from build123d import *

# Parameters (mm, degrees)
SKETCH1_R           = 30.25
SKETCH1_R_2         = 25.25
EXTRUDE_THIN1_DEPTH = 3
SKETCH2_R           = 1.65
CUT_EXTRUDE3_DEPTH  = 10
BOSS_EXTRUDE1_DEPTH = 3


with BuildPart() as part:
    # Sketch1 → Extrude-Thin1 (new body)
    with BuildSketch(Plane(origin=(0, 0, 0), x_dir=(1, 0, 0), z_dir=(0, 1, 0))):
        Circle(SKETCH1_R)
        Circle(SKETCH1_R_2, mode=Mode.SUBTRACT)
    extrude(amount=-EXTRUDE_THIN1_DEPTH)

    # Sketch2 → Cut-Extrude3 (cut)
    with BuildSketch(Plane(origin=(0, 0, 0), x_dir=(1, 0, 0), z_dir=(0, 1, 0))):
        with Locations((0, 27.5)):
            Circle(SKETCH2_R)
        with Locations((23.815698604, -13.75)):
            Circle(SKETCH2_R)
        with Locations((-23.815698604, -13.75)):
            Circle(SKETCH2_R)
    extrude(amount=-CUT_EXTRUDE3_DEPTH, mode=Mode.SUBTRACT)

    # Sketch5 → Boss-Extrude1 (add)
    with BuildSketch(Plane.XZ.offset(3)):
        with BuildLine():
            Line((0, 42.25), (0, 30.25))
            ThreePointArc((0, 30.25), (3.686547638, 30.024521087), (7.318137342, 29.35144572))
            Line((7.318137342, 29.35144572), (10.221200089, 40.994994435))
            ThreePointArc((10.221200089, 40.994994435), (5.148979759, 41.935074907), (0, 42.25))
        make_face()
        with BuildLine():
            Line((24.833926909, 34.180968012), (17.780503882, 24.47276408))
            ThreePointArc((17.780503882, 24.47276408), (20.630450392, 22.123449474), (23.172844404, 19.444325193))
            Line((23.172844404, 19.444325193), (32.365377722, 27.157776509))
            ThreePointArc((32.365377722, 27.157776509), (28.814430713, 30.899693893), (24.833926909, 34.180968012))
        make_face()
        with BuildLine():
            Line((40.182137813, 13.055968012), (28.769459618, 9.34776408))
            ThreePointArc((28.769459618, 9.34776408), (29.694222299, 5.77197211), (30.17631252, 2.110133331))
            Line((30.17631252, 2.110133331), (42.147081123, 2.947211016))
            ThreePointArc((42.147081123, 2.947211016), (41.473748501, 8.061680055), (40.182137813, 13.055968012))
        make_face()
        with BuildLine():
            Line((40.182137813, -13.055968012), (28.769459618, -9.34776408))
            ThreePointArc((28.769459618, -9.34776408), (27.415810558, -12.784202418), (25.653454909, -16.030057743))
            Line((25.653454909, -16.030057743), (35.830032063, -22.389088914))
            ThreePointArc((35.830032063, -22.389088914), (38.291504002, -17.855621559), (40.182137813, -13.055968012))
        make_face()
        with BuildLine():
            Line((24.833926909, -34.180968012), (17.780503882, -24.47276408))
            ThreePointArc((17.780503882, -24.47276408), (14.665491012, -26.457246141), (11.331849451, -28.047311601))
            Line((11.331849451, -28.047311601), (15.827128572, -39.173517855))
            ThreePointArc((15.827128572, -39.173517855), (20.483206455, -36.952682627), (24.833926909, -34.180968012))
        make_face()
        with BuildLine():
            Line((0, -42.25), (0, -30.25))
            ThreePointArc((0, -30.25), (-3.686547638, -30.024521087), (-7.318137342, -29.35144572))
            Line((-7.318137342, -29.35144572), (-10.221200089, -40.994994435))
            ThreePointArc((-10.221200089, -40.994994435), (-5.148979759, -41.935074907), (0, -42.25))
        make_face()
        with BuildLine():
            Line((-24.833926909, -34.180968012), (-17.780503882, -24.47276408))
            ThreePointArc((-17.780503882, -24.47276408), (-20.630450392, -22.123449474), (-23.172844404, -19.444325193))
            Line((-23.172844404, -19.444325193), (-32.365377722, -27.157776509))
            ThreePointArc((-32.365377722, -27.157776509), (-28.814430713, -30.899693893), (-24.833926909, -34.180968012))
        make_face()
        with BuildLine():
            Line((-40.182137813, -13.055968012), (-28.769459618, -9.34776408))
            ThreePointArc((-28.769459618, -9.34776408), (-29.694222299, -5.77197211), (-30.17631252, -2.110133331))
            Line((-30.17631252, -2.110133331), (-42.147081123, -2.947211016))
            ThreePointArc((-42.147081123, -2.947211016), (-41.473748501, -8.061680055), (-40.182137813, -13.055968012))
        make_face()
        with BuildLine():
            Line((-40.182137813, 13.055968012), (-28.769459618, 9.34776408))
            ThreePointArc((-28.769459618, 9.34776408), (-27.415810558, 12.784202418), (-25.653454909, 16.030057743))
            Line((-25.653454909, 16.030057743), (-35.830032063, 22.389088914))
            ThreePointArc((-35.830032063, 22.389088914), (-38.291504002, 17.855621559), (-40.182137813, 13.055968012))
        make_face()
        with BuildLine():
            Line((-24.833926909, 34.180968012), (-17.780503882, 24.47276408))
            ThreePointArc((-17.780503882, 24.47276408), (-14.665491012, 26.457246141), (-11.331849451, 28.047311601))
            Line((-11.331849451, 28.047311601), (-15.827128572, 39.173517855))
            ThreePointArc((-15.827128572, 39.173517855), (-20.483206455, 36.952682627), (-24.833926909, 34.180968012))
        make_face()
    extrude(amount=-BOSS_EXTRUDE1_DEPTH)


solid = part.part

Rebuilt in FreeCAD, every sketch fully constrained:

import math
import FreeCAD as App
import Part
import Sketcher
from FreeCAD import Vector
Q = App.Units.Quantity

doc = App.newDocument("Part")
body = doc.addObject("PartDesign::Body", "Body")

# Sketch on XZ plane
sketch1 = body.newObject("Sketcher::SketchObject", "Sketch")
sketch1.AttachmentSupport = (doc.getObject("XZ_Plane"), [""])
sketch1.MapMode = "FlatFace"
sketch1.addGeometry([
    Part.Circle(Vector(0, 0, 0), Vector(0, 0, 1), 30),
    Part.Circle(Vector(0, 0, 0), Vector(0, 0, 1), 25),
], False)
sketch1.addConstraint([
    Sketcher.Constraint("Coincident", 0, 3, -1, 1),
    Sketcher.Constraint("Coincident", 1, 3, -1, 1),
    Sketcher.Constraint("Diameter", 0, Q("60.5 mm")),
    Sketcher.Constraint("Diameter", 1, Q("50.5 mm")),
])
pad1 = body.newObject("PartDesign::Pad", "Pad")
pad1.Profile = sketch1
pad1.Length = 3

# Sketch on XZ plane
sketch2 = body.newObject("Sketcher::SketchObject", "Sketch001")
sketch2.AttachmentSupport = (doc.getObject("XZ_Plane"), [""])
sketch2.MapMode = "FlatFace"
sketch2.addGeometry([
    Part.Circle(Vector(0, -27.5, 0), Vector(0, 0, 1), 1.6),
    Part.Circle(Vector(23.8, 13.8, 0), Vector(0, 0, 1), 1.6),
    Part.Circle(Vector(-23.8, 13.8, 0), Vector(0, 0, 1), 1.6),
], False)
sketch2.addConstraint([
    Sketcher.Constraint("Equal", 0, 1),
    Sketcher.Constraint("Equal", 1, 2),
    Sketcher.Constraint("Symmetric", 1, 3, 2, 3, -2),
    Sketcher.Constraint("PointOnObject", 0, 3, -2),
    Sketcher.Constraint("Diameter", 0, Q("3.3 mm")),
    Sketcher.Constraint("DistanceY", 0, 3, -1, 1, Q("27.5 mm")),
    Sketcher.Constraint("DistanceY", -1, 1, 1, 3, Q("13.75 mm")),
    Sketcher.Constraint("DistanceX", -1, 1, 1, 3, Q("23.815699 mm")),
])
pocket1 = body.newObject("PartDesign::Pocket", "Pocket")
pocket1.Profile = sketch2
pocket1.Length = 10
pocket1.Reversed = True

# Sketch on XZ plane
sketch3 = body.newObject("Sketcher::SketchObject", "Sketch002")
sketch3.AttachmentSupport = (doc.getObject("XZ_Plane"), [""])
sketch3.MapMode = "FlatFace"
sketch3.AttachmentOffset = App.Placement(Vector(0, 0, 3), App.Rotation())
sketch3.addGeometry([
    Part.LineSegment(Vector(0, 42, 0), Vector(0, 30, 0)),  # 0
    Part.ArcOfCircle(Part.Circle(Vector(0, 0, 0), Vector(0, 0, 1), 30), math.radians(76), math.radians(90)),  # 1
    Part.LineSegment(Vector(7, 29, 0), Vector(10, 41, 0)),  # 2
    Part.ArcOfCircle(Part.Circle(Vector(0, 0, 0), Vector(0, 0, 1), 42), math.radians(76), math.radians(90)),  # 3
    Part.LineSegment(Vector(25, 34, 0), Vector(18, 24, 0)),  # 4
    Part.ArcOfCircle(Part.Circle(Vector(0, 0, 0), Vector(0, 0, 1), 30), math.radians(40), math.radians(54)),  # 5
    Part.LineSegment(Vector(23, 19, 0), Vector(32, 27, 0)),  # 6
    Part.ArcOfCircle(Part.Circle(Vector(0, 0, 0), Vector(0, 0, 1), 42), math.radians(40), math.radians(54)),  # 7
    Part.LineSegment(Vector(40, 13, 0), Vector(29, 9, 0)),  # 8
    Part.ArcOfCircle(Part.Circle(Vector(0, 0, 0), Vector(0, 0, 1), 30), math.radians(4), math.radians(18)),  # 9
    Part.LineSegment(Vector(30, 2, 0), Vector(42, 3, 0)),  # 10
    Part.ArcOfCircle(Part.Circle(Vector(0, 0, 0), Vector(0, 0, 1), 42), math.radians(4), math.radians(18)),  # 11
    Part.LineSegment(Vector(40, -13, 0), Vector(29, -9, 0)),  # 12
    Part.ArcOfCircle(Part.Circle(Vector(0, 0, 0), Vector(0, 0, 1), 30), math.radians(-32), math.radians(-18)),  # 13
    Part.LineSegment(Vector(26, -16, 0), Vector(36, -22, 0)),  # 14
    Part.ArcOfCircle(Part.Circle(Vector(0, 0, 0), Vector(0, 0, 1), 42), math.radians(-32), math.radians(-18)),  # 15
    Part.LineSegment(Vector(25, -34, 0), Vector(18, -24, 0)),  # 16
    Part.ArcOfCircle(Part.Circle(Vector(0, 0, 0), Vector(0, 0, 1), 30), math.radians(-68), math.radians(-54)),  # 17
    Part.LineSegment(Vector(11, -28, 0), Vector(16, -39, 0)),  # 18
    Part.ArcOfCircle(Part.Circle(Vector(0, 0, 0), Vector(0, 0, 1), 42), math.radians(-68), math.radians(-54)),  # 19
    Part.LineSegment(Vector(0, -42, 0), Vector(0, -30, 0)),  # 20
    Part.ArcOfCircle(Part.Circle(Vector(0, 0, 0), Vector(0, 0, 1), 30), math.radians(-104), math.radians(-90)),  # 21
    Part.LineSegment(Vector(-7, -29, 0), Vector(-10, -41, 0)),  # 22
    Part.ArcOfCircle(Part.Circle(Vector(0, 0, 0), Vector(0, 0, 1), 42), math.radians(-104), math.radians(-90)),  # 23
    Part.LineSegment(Vector(-25, -34, 0), Vector(-18, -24, 0)),  # 24
    Part.ArcOfCircle(Part.Circle(Vector(0, 0, 0), Vector(0, 0, 1), 30), math.radians(-140), math.radians(-126)),  # 25
    Part.LineSegment(Vector(-23, -19, 0), Vector(-32, -27, 0)),  # 26
    Part.ArcOfCircle(Part.Circle(Vector(0, 0, 0), Vector(0, 0, 1), 42), math.radians(-140), math.radians(-126)),  # 27
    Part.LineSegment(Vector(-40, -13, 0), Vector(-29, -9, 0)),  # 28
    Part.ArcOfCircle(Part.Circle(Vector(0, 0, 0), Vector(0, 0, 1), 30), math.radians(-176), math.radians(-162)),  # 29
    Part.LineSegment(Vector(-30, -2, 0), Vector(-42, -3, 0)),  # 30
    Part.ArcOfCircle(Part.Circle(Vector(0, 0, 0), Vector(0, 0, 1), 42), math.radians(-176), math.radians(-162)),  # 31
    Part.LineSegment(Vector(-40, 13, 0), Vector(-29, 9, 0)),  # 32
    Part.ArcOfCircle(Part.Circle(Vector(0, 0, 0), Vector(0, 0, 1), 30), math.radians(148), math.radians(162)),  # 33
    Part.LineSegment(Vector(-26, 16, 0), Vector(-36, 22, 0)),  # 34
    Part.ArcOfCircle(Part.Circle(Vector(0, 0, 0), Vector(0, 0, 1), 42), math.radians(148), math.radians(162)),  # 35
    Part.LineSegment(Vector(-25, 34, 0), Vector(-18, 24, 0)),  # 36
    Part.ArcOfCircle(Part.Circle(Vector(0, 0, 0), Vector(0, 0, 1), 30), math.radians(112), math.radians(126)),  # 37
    Part.LineSegment(Vector(-11, 28, 0), Vector(-16, 39, 0)),  # 38
    Part.ArcOfCircle(Part.Circle(Vector(0, 0, 0), Vector(0, 0, 1), 42), math.radians(112), math.radians(126)),  # 39
], False)
sketch3.addConstraint([
    Sketcher.Constraint("Coincident", 0, 2, 1, 2),
    Sketcher.Constraint("Coincident", 1, 1, 2, 1),
    Sketcher.Constraint("Coincident", 2, 2, 3, 1),
    Sketcher.Constraint("Coincident", 3, 2, 0, 1),
    Sketcher.Constraint("Coincident", 4, 2, 5, 2),
    Sketcher.Constraint("Coincident", 5, 1, 6, 1),
    Sketcher.Constraint("Coincident", 6, 2, 7, 1),
    Sketcher.Constraint("Coincident", 7, 2, 4, 1),
    Sketcher.Constraint("Coincident", 8, 2, 9, 2),
    Sketcher.Constraint("Coincident", 9, 1, 10, 1),
    Sketcher.Constraint("Coincident", 10, 2, 11, 1),
    Sketcher.Constraint("Coincident", 11, 2, 8, 1),
    Sketcher.Constraint("Coincident", 12, 2, 13, 2),
    Sketcher.Constraint("Coincident", 13, 1, 14, 1),
    Sketcher.Constraint("Coincident", 14, 2, 15, 1),
    Sketcher.Constraint("Coincident", 15, 2, 12, 1),
    Sketcher.Constraint("Coincident", 16, 2, 17, 2),
    Sketcher.Constraint("Coincident", 17, 1, 18, 1),
    Sketcher.Constraint("Coincident", 18, 2, 19, 1),
    Sketcher.Constraint("Coincident", 19, 2, 16, 1),
    Sketcher.Constraint("Coincident", 20, 2, 21, 2),
    Sketcher.Constraint("Coincident", 21, 1, 22, 1),
    Sketcher.Constraint("Coincident", 22, 2, 23, 1),
    Sketcher.Constraint("Coincident", 23, 2, 20, 1),
    Sketcher.Constraint("Coincident", 24, 2, 25, 2),
    Sketcher.Constraint("Coincident", 25, 1, 26, 1),
    Sketcher.Constraint("Coincident", 26, 2, 27, 1),
    Sketcher.Constraint("Coincident", 27, 2, 24, 1),
    Sketcher.Constraint("Coincident", 28, 2, 29, 2),
    Sketcher.Constraint("Coincident", 29, 1, 30, 1),
    Sketcher.Constraint("Coincident", 30, 2, 31, 1),
    Sketcher.Constraint("Coincident", 31, 2, 28, 1),
    Sketcher.Constraint("Coincident", 32, 2, 33, 2),
    Sketcher.Constraint("Coincident", 33, 1, 34, 1),
    Sketcher.Constraint("Coincident", 34, 2, 35, 1),
    Sketcher.Constraint("Coincident", 35, 2, 32, 1),
    Sketcher.Constraint("Coincident", 36, 2, 37, 2),
    Sketcher.Constraint("Coincident", 37, 1, 38, 1),
    Sketcher.Constraint("Coincident", 38, 2, 39, 1),
    Sketcher.Constraint("Coincident", 39, 2, 36, 1),
    Sketcher.Constraint("Vertical", 0),
    Sketcher.Constraint("Vertical", 20),
    Sketcher.Constraint("Coincident", 1, 3, -1, 1),
    Sketcher.Constraint("Coincident", 3, 3, -1, 1),
    Sketcher.Constraint("Coincident", 5, 3, -1, 1),
    Sketcher.Constraint("Coincident", 7, 3, -1, 1),
    Sketcher.Constraint("Coincident", 9, 3, -1, 1),
    Sketcher.Constraint("Coincident", 11, 3, -1, 1),
    Sketcher.Constraint("Coincident", 13, 3, -1, 1),
    Sketcher.Constraint("Coincident", 15, 3, -1, 1),
    Sketcher.Constraint("Coincident", 17, 3, -1, 1),
    Sketcher.Constraint("Coincident", 19, 3, -1, 1),
    Sketcher.Constraint("Coincident", 21, 3, -1, 1),
    Sketcher.Constraint("Coincident", 23, 3, -1, 1),
    Sketcher.Constraint("Coincident", 25, 3, -1, 1),
    Sketcher.Constraint("Coincident", 27, 3, -1, 1),
    Sketcher.Constraint("Coincident", 29, 3, -1, 1),
    Sketcher.Constraint("Coincident", 31, 3, -1, 1),
    Sketcher.Constraint("Coincident", 33, 3, -1, 1),
    Sketcher.Constraint("Coincident", 35, 3, -1, 1),
    Sketcher.Constraint("Coincident", 37, 3, -1, 1),
    Sketcher.Constraint("Coincident", 39, 3, -1, 1),
    Sketcher.Constraint("Equal", 1, 5),
    Sketcher.Constraint("Equal", 3, 7),
    Sketcher.Constraint("Equal", 5, 9),
    Sketcher.Constraint("Equal", 7, 11),
    Sketcher.Constraint("Equal", 9, 13),
    Sketcher.Constraint("Equal", 11, 15),
    Sketcher.Constraint("Equal", 13, 17),
    Sketcher.Constraint("Equal", 15, 19),
    Sketcher.Constraint("Equal", 17, 21),
    Sketcher.Constraint("Equal", 19, 23),
    Sketcher.Constraint("Equal", 21, 25),
    Sketcher.Constraint("Equal", 23, 27),
    Sketcher.Constraint("Equal", 25, 29),
    Sketcher.Constraint("Equal", 27, 31),
    Sketcher.Constraint("Equal", 29, 33),
    Sketcher.Constraint("Equal", 31, 35),
    Sketcher.Constraint("Equal", 33, 37),
    Sketcher.Constraint("Equal", 35, 39),
    Sketcher.Constraint("PointOnObject", 0, 2, -2),
    Sketcher.Constraint("PointOnObject", 20, 2, -2),
    Sketcher.Constraint("Parallel", 2, 22),
    Sketcher.Constraint("Parallel", 4, 24),
    Sketcher.Constraint("Parallel", 6, 26),
    Sketcher.Constraint("Parallel", 8, 28),
    Sketcher.Constraint("Parallel", 10, 30),
    Sketcher.Constraint("Parallel", 12, 32),
    Sketcher.Constraint("Parallel", 14, 34),
    Sketcher.Constraint("Parallel", 16, 36),
    Sketcher.Constraint("Parallel", 18, 38),
    Sketcher.Constraint("Horizontal", 16, 2, 24, 2),
    Sketcher.Constraint("Horizontal", 19, 2, 27, 2),
    Sketcher.Constraint("Horizontal", 12, 2, 28, 2),
    Sketcher.Constraint("Horizontal", 15, 2, 31, 2),
    Sketcher.Constraint("Horizontal", 8, 2, 32, 2),
    Sketcher.Constraint("Horizontal", 4, 2, 36, 2),
    Sketcher.Constraint("Vertical", 8, 2, 12, 2),
    Sketcher.Constraint("Vertical", 4, 2, 16, 2),
    Sketcher.Constraint("DistanceY", 0, 2, 0, 1, Q("12 mm")),
    Sketcher.Constraint("Angle", 2, Q("76 deg")),
    Sketcher.Constraint("Angle", 4, Q("-126 deg")),
    Sketcher.Constraint("Angle", 6, Q("40 deg")),
    Sketcher.Constraint("Angle", 8, Q("-162 deg")),
    Sketcher.Constraint("Angle", 10, Q("4 deg")),
    Sketcher.Constraint("Angle", 14, Q("-32 deg")),
    Sketcher.Constraint("Angle", 18, Q("-68 deg")),
    Sketcher.Constraint("Radius", 1, Q("30.25 mm")),
    Sketcher.Constraint("DistanceY", 8, 2, 4, 2, Q("15.125 mm")),
    Sketcher.Constraint("DistanceX", -1, 1, 2, 2, Q("10.2212 mm")),
    Sketcher.Constraint("DistanceX", 22, 2, -1, 1, Q("10.2212 mm")),
    Sketcher.Constraint("DistanceY", 14, 2, 10, 2, Q("25.3363 mm")),
    Sketcher.Constraint("DistanceY", 15, 2, 9, 1, Q("15.166101 mm")),
    Sketcher.Constraint("DistanceX", 18, 2, 19, 2, Q("9.006798 mm")),
    Sketcher.Constraint("DistanceY", 30, 2, 34, 2, Q("25.3363 mm")),
    Sketcher.Constraint("DistanceY", 29, 1, 35, 2, Q("15.166101 mm")),
    Sketcher.Constraint("DistanceX", 39, 2, 38, 2, Q("9.006798 mm")),
    Sketcher.Constraint("DistanceY", -1, 1, 7, 2, Q("34.180968 mm")),
    Sketcher.Constraint("DistanceX", 4, 2, 5, 1, Q("5.392341 mm")),
    Sketcher.Constraint("DistanceX", 25, 1, 24, 2, Q("5.392341 mm")),
])
pad2 = body.newObject("PartDesign::Pad", "Pad001")
pad2.Profile = sketch3
pad2.Length = 3
pad2.Reversed = True

doc.recompute()
